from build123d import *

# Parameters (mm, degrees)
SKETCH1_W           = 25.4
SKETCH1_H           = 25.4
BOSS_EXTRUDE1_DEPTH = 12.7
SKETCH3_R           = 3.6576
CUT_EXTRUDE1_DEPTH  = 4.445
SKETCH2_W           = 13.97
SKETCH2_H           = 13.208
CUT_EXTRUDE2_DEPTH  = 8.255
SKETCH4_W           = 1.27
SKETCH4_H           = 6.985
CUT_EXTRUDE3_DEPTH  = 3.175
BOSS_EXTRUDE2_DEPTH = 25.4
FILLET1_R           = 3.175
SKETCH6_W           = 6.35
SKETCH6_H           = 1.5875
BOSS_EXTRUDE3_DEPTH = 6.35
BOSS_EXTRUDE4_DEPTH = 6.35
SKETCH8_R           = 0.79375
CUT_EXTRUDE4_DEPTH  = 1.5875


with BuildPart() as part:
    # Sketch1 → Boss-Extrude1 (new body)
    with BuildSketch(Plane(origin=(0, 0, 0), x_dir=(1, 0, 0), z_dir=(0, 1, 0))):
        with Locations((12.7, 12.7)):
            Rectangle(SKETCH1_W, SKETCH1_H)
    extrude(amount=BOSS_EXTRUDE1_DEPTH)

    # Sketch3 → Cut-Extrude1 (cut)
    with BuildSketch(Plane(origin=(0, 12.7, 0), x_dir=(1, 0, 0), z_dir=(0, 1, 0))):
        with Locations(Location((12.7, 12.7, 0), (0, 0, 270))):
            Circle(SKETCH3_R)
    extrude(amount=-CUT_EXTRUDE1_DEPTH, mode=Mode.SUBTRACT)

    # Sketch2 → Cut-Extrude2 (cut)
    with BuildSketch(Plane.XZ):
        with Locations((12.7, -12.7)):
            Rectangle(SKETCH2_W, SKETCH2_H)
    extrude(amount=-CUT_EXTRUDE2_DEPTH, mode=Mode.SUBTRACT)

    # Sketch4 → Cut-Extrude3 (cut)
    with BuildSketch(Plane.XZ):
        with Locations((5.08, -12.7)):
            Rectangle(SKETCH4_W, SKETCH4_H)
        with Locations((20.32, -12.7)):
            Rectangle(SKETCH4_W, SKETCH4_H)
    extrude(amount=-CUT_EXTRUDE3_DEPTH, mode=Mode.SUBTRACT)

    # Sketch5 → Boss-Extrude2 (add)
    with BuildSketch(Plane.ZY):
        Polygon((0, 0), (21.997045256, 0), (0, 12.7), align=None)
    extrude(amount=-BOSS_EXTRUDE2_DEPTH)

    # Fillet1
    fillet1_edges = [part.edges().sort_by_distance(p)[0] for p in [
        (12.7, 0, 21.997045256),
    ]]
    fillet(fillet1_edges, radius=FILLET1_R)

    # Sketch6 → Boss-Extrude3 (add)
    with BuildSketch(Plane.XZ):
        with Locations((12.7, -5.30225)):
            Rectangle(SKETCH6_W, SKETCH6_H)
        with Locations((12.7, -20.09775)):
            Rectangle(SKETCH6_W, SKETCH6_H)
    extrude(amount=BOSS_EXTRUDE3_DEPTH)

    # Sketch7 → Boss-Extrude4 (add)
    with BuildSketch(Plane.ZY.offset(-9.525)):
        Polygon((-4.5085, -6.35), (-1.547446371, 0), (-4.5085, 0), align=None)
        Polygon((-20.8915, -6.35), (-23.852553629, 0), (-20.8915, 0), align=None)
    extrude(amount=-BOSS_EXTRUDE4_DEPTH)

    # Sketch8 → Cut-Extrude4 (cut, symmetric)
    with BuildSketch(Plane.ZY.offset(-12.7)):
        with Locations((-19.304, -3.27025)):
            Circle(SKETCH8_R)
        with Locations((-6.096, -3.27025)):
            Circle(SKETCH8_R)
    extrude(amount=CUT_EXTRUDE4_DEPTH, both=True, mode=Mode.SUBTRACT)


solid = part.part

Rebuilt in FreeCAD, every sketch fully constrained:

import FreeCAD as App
import Part
import Sketcher
Q = App.Units.Quantity


def edges_at(feature, points):
    """Names of the edges that pass closest to the given points."""
    edges = feature.Shape.Edges
    near = lambda p: min(range(len(edges)), key=lambda i: edges[i].distToShape(Part.Vertex(*p))[0])
    return sorted({f"Edge{near(p) + 1}" for p in points})


def add_polygon(sketch, points):
    """Adds a closed chain of lines whose ends are joined by coincident constraints."""
    first, n = sketch.GeometryCount, len(points)
    for a, b in zip(points, points[1:] + points[:1]):
        sketch.addGeometry(Part.LineSegment(App.Vector(*a, 0), App.Vector(*b, 0)), False)
    for i in range(n):
        sketch.addConstraint(Sketcher.Constraint("Coincident", first + i, 2, first + (i + 1) % n, 1))

doc = App.newDocument("Part")
body = doc.addObject("PartDesign::Body", "Body")

# Sketch on XZ plane
sketch1 = body.newObject("Sketcher::SketchObject", "Sketch")
sketch1.AttachmentSupport = (doc.getObject("XZ_Plane"), [""])
sketch1.MapMode = "FlatFace"
add_polygon(sketch1, [(0, -25.4), (0, 0), (25.4, 0), (25.4, -25.4)])  # lines 0-3
sketch1.addConstraint([
    Sketcher.Constraint("Vertical", 0),
    Sketcher.Constraint("Horizontal", 1),
    Sketcher.Constraint("Vertical", 2),
    Sketcher.Constraint("Horizontal", 3),
    Sketcher.Constraint("Coincident", 0, 2, -1, 1),
    Sketcher.Constraint("Equal", 3, 0),
    Sketcher.Constraint("DistanceX", 1, 1, 1, 2, Q("1 in")),
])
pad1 = body.newObject("PartDesign::Pad", "Pad")
pad1.Profile = sketch1
pad1.Length = Q("0.5 in")
pad1.Reversed = True

# Sketch on XZ plane
sketch2 = body.newObject("Sketcher::SketchObject", "Sketch001")
sketch2.AttachmentSupport = (doc.getObject("XZ_Plane"), [""])
sketch2.MapMode = "FlatFace"
sketch2.AttachmentOffset = App.Placement(App.Vector(0, 0, -0.5 * 25.4), App.Rotation())
sketch2.addGeometry(Part.Circle(App.Vector(12.7, -12.7, 0), App.Vector(0, 0, 1), 3.6576), False)
sketch2.addConstraint([
    Sketcher.Constraint("Diameter", 0, Q("0.288 in")),
    Sketcher.Constraint("DistanceX", -1, 1, 0, 3, Q("0.5 in")),
    Sketcher.Constraint("DistanceY", 0, 3, -1, 1, Q("0.5 in")),
])
pocket1 = body.newObject("PartDesign::Pocket", "Pocket")
pocket1.Profile = sketch2
pocket1.Length = Q("0.175 in")
pocket1.Reversed = True

# Sketch on XZ plane
sketch3 = body.newObject("Sketcher::SketchObject", "Sketch002")
sketch3.AttachmentSupport = (doc.getObject("XZ_Plane"), [""])
sketch3.MapMode = "FlatFace"
add_polygon(sketch3, [(5.715, -6.096), (5.715, -19.304), (19.685, -19.304), (19.685, -6.096)])  # lines 0-3
sketch3.addConstraint([
    Sketcher.Constraint("Vertical", 0),
    Sketcher.Constraint("Horizontal", 1),
    Sketcher.Constraint("Vertical", 2),
    Sketcher.Constraint("Horizontal", 3),
    Sketcher.Constraint("DistanceX", 1, 1, 1, 2, Q("0.55 in")),
    Sketcher.Constraint("DistanceY", 0, 2, 0, 1, Q("0.52 in")),
    Sketcher.Constraint("DistanceY", 0, 2, -1, 1, Q("0.76 in")),
    Sketcher.Constraint("DistanceX", -1, 1, 0, 2, Q("0.225 in")),
])
pocket2 = body.newObject("PartDesign::Pocket", "Pocket001")
pocket2.Profile = sketch3
pocket2.Length = Q("0.325 in")

# Sketch on XZ plane
sketch4 = body.newObject("Sketcher::SketchObject", "Sketch003")
sketch4.AttachmentSupport = (doc.getObject("XZ_Plane"), [""])
sketch4.MapMode = "FlatFace"
add_polygon(sketch4, [(4.445, -9.2075), (4.445, -16.1925), (5.715, -16.1925), (5.715, -9.2075)])  # lines 0-3
add_polygon(sketch4, [(19.685, -9.2075), (19.685, -16.1925), (20.955, -16.1925), (20.955, -9.2075)])  # lines 4-7
sketch4.addConstraint([
    Sketcher.Constraint("Vertical", 0),
    Sketcher.Constraint("Horizontal", 1),
    Sketcher.Constraint("Vertical", 2),
    Sketcher.Constraint("Horizontal", 3),
    Sketcher.Constraint("Vertical", 4),
    Sketcher.Constraint("Horizontal", 5),
    Sketcher.Constraint("Vertical", 6),
    Sketcher.Constraint("Horizontal", 7),
    Sketcher.Constraint("Horizontal", 1, 2, 4, 2),
    Sketcher.Constraint("Horizontal", 3, 2, 6, 2),
    Sketcher.Constraint("Equal", 3, 5),
    Sketcher.Constraint("DistanceX", 1, 1, 1, 2, Q("0.05 in")),
    Sketcher.Constraint("DistanceX", 0, 2, 4, 2, Q("0.6 in")),
    Sketcher.Constraint("DistanceY", 0, 2, 0, 1, Q("0.275 in")),
    Sketcher.Constraint("DistanceX", -1, 1, 0, 2, Q("0.175 in")),
    Sketcher.Constraint("DistanceY", 0, 2, -1, 1, Q("0.6375 in")),
])
pocket3 = body.newObject("PartDesign::Pocket", "Pocket002")
pocket3.Profile = sketch4
pocket3.Length = Q("0.125 in")

# Sketch on YZ plane
sketch5 = body.newObject("Sketcher::SketchObject", "Sketch004")
sketch5.AttachmentSupport = (doc.getObject("YZ_Plane"), [""])
sketch5.MapMode = "FlatFace"
add_polygon(sketch5, [(0, 0), (0, 21.997045), (12.7, 0)])  # lines 0-2
sketch5.addConstraint([
    Sketcher.Constraint("Vertical", 0),
    Sketcher.Constraint("Horizontal", 2),
    Sketcher.Constraint("Coincident", 2, 2, -1, 1),
    Sketcher.Constraint("Distance", 1, Q("1 in")),
    Sketcher.Constraint("DistanceX", 2, 2, 2, 1, Q("0.5 in")),
])
pad2 = body.newObject("PartDesign::Pad", "Pad001")
pad2.Profile = sketch5
pad2.Length = Q("1 in")
doc.recompute()

fillet = body.newObject("PartDesign::Fillet", "Fillet")
fillet.Base = (pad2, edges_at(pad2, [(12.7, 0, 21.997)]))
fillet.Radius = Q("0.125 in")

# Sketch on XZ plane
sketch6 = body.newObject("Sketcher::SketchObject", "Sketch005")
sketch6.AttachmentSupport = (doc.getObject("XZ_Plane"), [""])
sketch6.MapMode = "FlatFace"
add_polygon(sketch6, [(9.525, -4.5085), (9.525, -6.096), (15.875, -6.096), (15.875, -4.5085)])  # lines 0-3
add_polygon(sketch6, [(9.525, -19.304), (9.525, -20.8915), (15.875, -20.8915), (15.875, -19.304)])  # lines 4-7
sketch6.addConstraint([
    Sketcher.Constraint("Vertical", 0),
    Sketcher.Constraint("Horizontal", 1),
    Sketcher.Constraint("Vertical", 2),
    Sketcher.Constraint("Horizontal", 3),
    Sketcher.Constraint("Vertical", 4),
    Sketcher.Constraint("Horizontal", 5),
    Sketcher.Constraint("Vertical", 6),
    Sketcher.Constraint("Horizontal", 7),
    Sketcher.Constraint("Vertical", 3, 2, 4, 2),
    Sketcher.Constraint("Vertical", 2, 2, 5, 2),
    Sketcher.Constraint("Equal", 2, 4),
    Sketcher.Constraint("DistanceX", 1, 1, 1, 2, Q("0.25 in")),
    Sketcher.Constraint("DistanceY", 0, 2, 0, 1, Q("0.0625 in")),
    Sketcher.Constraint("DistanceY", 0, 2, -1, 1, Q("0.24 in")),
    Sketcher.Constraint("DistanceY", 6, 2, -1, 1, Q("0.76 in")),
    Sketcher.Constraint("DistanceX", -1, 1, 0, 2, Q("0.375 in")),
])
pad3 = body.newObject("PartDesign::Pad", "Pad002")
pad3.Profile = sketch6
pad3.Length = Q("0.25 in")

# Sketch on YZ plane
sketch7 = body.newObject("Sketcher::SketchObject", "Sketch006")
sketch7.AttachmentSupport = (doc.getObject("YZ_Plane"), [""])
sketch7.MapMode = "FlatFace"
sketch7.AttachmentOffset = App.Placement(App.Vector(0, 0, 0.375 * 25.4), App.Rotation())
add_polygon(sketch7, [(-6.35, -4.5085), (0, -1.547446), (0, -4.5085)])  # lines 0-2
add_polygon(sketch7, [(0, -23.852554), (-6.35, -20.8915), (0, -20.8915)])  # lines 3-5
sketch7.addConstraint([
    Sketcher.Constraint("Vertical", 1),
    Sketcher.Constraint("Horizontal", 2),
    Sketcher.Constraint("Horizontal", 4),
    Sketcher.Constraint("Vertical", 5),
    Sketcher.Constraint("PointOnObject", 0, 2, -2),
    Sketcher.Constraint("PointOnObject", 4, 2, -2),
    Sketcher.Constraint("Vertical", 2, 2, 3, 2),
    Sketcher.Constraint("Equal", 1, 5),
    Sketcher.Constraint("Angle", 0, Q("25 deg")),
    Sketcher.Constraint("DistanceX", 2, 2, 2, 1, Q("0.25 in")),
    Sketcher.Constraint("DistanceY", 3, 2, 2, 2, Q("0.645 in")),
    Sketcher.Constraint("DistanceY", 1, 2, -1, 1, Q("0.1775 in")),
])
pad4 = body.newObject("PartDesign::Pad", "Pad003")
pad4.Profile = sketch7
pad4.Length = Q("0.25 in")

# Sketch on YZ plane
sketch8 = body.newObject("Sketcher::SketchObject", "Sketch007")
sketch8.AttachmentSupport = (doc.getObject("YZ_Plane"), [""])
sketch8.MapMode = "FlatFace"
sketch8.AttachmentOffset = App.Placement(App.Vector(0, 0, 0.5 * 25.4), App.Rotation())
sketch8.addGeometry([
    Part.Circle(App.Vector(-3.27025, -19.304, 0), App.Vector(0, 0, 1), 0.79375),
    Part.Circle(App.Vector(-3.27025, -6.096, 0), App.Vector(0, 0, 1), 0.79375),
], False)
sketch8.addConstraint([
    Sketcher.Constraint("Equal", 0, 1),
    Sketcher.Constraint("Vertical", 0, 3, 1, 3),
    Sketcher.Constraint("Diameter", 0, Q("0.0625 in")),
    Sketcher.Constraint("DistanceY", 0, 3, -1, 1, Q("0.76 in")),
    Sketcher.Constraint("DistanceY", 1, 3, -1, 1, Q("0.24 in")),
    Sketcher.Constraint("DistanceX", 0, 3, -1, 1, Q("3.27025 mm")),
])
pocket4 = body.newObject("PartDesign::Pocket", "Pocket003")
pocket4.Profile = sketch8
pocket4.Length = Q("0.125 in")
pocket4.Midplane = True

doc.recompute()
